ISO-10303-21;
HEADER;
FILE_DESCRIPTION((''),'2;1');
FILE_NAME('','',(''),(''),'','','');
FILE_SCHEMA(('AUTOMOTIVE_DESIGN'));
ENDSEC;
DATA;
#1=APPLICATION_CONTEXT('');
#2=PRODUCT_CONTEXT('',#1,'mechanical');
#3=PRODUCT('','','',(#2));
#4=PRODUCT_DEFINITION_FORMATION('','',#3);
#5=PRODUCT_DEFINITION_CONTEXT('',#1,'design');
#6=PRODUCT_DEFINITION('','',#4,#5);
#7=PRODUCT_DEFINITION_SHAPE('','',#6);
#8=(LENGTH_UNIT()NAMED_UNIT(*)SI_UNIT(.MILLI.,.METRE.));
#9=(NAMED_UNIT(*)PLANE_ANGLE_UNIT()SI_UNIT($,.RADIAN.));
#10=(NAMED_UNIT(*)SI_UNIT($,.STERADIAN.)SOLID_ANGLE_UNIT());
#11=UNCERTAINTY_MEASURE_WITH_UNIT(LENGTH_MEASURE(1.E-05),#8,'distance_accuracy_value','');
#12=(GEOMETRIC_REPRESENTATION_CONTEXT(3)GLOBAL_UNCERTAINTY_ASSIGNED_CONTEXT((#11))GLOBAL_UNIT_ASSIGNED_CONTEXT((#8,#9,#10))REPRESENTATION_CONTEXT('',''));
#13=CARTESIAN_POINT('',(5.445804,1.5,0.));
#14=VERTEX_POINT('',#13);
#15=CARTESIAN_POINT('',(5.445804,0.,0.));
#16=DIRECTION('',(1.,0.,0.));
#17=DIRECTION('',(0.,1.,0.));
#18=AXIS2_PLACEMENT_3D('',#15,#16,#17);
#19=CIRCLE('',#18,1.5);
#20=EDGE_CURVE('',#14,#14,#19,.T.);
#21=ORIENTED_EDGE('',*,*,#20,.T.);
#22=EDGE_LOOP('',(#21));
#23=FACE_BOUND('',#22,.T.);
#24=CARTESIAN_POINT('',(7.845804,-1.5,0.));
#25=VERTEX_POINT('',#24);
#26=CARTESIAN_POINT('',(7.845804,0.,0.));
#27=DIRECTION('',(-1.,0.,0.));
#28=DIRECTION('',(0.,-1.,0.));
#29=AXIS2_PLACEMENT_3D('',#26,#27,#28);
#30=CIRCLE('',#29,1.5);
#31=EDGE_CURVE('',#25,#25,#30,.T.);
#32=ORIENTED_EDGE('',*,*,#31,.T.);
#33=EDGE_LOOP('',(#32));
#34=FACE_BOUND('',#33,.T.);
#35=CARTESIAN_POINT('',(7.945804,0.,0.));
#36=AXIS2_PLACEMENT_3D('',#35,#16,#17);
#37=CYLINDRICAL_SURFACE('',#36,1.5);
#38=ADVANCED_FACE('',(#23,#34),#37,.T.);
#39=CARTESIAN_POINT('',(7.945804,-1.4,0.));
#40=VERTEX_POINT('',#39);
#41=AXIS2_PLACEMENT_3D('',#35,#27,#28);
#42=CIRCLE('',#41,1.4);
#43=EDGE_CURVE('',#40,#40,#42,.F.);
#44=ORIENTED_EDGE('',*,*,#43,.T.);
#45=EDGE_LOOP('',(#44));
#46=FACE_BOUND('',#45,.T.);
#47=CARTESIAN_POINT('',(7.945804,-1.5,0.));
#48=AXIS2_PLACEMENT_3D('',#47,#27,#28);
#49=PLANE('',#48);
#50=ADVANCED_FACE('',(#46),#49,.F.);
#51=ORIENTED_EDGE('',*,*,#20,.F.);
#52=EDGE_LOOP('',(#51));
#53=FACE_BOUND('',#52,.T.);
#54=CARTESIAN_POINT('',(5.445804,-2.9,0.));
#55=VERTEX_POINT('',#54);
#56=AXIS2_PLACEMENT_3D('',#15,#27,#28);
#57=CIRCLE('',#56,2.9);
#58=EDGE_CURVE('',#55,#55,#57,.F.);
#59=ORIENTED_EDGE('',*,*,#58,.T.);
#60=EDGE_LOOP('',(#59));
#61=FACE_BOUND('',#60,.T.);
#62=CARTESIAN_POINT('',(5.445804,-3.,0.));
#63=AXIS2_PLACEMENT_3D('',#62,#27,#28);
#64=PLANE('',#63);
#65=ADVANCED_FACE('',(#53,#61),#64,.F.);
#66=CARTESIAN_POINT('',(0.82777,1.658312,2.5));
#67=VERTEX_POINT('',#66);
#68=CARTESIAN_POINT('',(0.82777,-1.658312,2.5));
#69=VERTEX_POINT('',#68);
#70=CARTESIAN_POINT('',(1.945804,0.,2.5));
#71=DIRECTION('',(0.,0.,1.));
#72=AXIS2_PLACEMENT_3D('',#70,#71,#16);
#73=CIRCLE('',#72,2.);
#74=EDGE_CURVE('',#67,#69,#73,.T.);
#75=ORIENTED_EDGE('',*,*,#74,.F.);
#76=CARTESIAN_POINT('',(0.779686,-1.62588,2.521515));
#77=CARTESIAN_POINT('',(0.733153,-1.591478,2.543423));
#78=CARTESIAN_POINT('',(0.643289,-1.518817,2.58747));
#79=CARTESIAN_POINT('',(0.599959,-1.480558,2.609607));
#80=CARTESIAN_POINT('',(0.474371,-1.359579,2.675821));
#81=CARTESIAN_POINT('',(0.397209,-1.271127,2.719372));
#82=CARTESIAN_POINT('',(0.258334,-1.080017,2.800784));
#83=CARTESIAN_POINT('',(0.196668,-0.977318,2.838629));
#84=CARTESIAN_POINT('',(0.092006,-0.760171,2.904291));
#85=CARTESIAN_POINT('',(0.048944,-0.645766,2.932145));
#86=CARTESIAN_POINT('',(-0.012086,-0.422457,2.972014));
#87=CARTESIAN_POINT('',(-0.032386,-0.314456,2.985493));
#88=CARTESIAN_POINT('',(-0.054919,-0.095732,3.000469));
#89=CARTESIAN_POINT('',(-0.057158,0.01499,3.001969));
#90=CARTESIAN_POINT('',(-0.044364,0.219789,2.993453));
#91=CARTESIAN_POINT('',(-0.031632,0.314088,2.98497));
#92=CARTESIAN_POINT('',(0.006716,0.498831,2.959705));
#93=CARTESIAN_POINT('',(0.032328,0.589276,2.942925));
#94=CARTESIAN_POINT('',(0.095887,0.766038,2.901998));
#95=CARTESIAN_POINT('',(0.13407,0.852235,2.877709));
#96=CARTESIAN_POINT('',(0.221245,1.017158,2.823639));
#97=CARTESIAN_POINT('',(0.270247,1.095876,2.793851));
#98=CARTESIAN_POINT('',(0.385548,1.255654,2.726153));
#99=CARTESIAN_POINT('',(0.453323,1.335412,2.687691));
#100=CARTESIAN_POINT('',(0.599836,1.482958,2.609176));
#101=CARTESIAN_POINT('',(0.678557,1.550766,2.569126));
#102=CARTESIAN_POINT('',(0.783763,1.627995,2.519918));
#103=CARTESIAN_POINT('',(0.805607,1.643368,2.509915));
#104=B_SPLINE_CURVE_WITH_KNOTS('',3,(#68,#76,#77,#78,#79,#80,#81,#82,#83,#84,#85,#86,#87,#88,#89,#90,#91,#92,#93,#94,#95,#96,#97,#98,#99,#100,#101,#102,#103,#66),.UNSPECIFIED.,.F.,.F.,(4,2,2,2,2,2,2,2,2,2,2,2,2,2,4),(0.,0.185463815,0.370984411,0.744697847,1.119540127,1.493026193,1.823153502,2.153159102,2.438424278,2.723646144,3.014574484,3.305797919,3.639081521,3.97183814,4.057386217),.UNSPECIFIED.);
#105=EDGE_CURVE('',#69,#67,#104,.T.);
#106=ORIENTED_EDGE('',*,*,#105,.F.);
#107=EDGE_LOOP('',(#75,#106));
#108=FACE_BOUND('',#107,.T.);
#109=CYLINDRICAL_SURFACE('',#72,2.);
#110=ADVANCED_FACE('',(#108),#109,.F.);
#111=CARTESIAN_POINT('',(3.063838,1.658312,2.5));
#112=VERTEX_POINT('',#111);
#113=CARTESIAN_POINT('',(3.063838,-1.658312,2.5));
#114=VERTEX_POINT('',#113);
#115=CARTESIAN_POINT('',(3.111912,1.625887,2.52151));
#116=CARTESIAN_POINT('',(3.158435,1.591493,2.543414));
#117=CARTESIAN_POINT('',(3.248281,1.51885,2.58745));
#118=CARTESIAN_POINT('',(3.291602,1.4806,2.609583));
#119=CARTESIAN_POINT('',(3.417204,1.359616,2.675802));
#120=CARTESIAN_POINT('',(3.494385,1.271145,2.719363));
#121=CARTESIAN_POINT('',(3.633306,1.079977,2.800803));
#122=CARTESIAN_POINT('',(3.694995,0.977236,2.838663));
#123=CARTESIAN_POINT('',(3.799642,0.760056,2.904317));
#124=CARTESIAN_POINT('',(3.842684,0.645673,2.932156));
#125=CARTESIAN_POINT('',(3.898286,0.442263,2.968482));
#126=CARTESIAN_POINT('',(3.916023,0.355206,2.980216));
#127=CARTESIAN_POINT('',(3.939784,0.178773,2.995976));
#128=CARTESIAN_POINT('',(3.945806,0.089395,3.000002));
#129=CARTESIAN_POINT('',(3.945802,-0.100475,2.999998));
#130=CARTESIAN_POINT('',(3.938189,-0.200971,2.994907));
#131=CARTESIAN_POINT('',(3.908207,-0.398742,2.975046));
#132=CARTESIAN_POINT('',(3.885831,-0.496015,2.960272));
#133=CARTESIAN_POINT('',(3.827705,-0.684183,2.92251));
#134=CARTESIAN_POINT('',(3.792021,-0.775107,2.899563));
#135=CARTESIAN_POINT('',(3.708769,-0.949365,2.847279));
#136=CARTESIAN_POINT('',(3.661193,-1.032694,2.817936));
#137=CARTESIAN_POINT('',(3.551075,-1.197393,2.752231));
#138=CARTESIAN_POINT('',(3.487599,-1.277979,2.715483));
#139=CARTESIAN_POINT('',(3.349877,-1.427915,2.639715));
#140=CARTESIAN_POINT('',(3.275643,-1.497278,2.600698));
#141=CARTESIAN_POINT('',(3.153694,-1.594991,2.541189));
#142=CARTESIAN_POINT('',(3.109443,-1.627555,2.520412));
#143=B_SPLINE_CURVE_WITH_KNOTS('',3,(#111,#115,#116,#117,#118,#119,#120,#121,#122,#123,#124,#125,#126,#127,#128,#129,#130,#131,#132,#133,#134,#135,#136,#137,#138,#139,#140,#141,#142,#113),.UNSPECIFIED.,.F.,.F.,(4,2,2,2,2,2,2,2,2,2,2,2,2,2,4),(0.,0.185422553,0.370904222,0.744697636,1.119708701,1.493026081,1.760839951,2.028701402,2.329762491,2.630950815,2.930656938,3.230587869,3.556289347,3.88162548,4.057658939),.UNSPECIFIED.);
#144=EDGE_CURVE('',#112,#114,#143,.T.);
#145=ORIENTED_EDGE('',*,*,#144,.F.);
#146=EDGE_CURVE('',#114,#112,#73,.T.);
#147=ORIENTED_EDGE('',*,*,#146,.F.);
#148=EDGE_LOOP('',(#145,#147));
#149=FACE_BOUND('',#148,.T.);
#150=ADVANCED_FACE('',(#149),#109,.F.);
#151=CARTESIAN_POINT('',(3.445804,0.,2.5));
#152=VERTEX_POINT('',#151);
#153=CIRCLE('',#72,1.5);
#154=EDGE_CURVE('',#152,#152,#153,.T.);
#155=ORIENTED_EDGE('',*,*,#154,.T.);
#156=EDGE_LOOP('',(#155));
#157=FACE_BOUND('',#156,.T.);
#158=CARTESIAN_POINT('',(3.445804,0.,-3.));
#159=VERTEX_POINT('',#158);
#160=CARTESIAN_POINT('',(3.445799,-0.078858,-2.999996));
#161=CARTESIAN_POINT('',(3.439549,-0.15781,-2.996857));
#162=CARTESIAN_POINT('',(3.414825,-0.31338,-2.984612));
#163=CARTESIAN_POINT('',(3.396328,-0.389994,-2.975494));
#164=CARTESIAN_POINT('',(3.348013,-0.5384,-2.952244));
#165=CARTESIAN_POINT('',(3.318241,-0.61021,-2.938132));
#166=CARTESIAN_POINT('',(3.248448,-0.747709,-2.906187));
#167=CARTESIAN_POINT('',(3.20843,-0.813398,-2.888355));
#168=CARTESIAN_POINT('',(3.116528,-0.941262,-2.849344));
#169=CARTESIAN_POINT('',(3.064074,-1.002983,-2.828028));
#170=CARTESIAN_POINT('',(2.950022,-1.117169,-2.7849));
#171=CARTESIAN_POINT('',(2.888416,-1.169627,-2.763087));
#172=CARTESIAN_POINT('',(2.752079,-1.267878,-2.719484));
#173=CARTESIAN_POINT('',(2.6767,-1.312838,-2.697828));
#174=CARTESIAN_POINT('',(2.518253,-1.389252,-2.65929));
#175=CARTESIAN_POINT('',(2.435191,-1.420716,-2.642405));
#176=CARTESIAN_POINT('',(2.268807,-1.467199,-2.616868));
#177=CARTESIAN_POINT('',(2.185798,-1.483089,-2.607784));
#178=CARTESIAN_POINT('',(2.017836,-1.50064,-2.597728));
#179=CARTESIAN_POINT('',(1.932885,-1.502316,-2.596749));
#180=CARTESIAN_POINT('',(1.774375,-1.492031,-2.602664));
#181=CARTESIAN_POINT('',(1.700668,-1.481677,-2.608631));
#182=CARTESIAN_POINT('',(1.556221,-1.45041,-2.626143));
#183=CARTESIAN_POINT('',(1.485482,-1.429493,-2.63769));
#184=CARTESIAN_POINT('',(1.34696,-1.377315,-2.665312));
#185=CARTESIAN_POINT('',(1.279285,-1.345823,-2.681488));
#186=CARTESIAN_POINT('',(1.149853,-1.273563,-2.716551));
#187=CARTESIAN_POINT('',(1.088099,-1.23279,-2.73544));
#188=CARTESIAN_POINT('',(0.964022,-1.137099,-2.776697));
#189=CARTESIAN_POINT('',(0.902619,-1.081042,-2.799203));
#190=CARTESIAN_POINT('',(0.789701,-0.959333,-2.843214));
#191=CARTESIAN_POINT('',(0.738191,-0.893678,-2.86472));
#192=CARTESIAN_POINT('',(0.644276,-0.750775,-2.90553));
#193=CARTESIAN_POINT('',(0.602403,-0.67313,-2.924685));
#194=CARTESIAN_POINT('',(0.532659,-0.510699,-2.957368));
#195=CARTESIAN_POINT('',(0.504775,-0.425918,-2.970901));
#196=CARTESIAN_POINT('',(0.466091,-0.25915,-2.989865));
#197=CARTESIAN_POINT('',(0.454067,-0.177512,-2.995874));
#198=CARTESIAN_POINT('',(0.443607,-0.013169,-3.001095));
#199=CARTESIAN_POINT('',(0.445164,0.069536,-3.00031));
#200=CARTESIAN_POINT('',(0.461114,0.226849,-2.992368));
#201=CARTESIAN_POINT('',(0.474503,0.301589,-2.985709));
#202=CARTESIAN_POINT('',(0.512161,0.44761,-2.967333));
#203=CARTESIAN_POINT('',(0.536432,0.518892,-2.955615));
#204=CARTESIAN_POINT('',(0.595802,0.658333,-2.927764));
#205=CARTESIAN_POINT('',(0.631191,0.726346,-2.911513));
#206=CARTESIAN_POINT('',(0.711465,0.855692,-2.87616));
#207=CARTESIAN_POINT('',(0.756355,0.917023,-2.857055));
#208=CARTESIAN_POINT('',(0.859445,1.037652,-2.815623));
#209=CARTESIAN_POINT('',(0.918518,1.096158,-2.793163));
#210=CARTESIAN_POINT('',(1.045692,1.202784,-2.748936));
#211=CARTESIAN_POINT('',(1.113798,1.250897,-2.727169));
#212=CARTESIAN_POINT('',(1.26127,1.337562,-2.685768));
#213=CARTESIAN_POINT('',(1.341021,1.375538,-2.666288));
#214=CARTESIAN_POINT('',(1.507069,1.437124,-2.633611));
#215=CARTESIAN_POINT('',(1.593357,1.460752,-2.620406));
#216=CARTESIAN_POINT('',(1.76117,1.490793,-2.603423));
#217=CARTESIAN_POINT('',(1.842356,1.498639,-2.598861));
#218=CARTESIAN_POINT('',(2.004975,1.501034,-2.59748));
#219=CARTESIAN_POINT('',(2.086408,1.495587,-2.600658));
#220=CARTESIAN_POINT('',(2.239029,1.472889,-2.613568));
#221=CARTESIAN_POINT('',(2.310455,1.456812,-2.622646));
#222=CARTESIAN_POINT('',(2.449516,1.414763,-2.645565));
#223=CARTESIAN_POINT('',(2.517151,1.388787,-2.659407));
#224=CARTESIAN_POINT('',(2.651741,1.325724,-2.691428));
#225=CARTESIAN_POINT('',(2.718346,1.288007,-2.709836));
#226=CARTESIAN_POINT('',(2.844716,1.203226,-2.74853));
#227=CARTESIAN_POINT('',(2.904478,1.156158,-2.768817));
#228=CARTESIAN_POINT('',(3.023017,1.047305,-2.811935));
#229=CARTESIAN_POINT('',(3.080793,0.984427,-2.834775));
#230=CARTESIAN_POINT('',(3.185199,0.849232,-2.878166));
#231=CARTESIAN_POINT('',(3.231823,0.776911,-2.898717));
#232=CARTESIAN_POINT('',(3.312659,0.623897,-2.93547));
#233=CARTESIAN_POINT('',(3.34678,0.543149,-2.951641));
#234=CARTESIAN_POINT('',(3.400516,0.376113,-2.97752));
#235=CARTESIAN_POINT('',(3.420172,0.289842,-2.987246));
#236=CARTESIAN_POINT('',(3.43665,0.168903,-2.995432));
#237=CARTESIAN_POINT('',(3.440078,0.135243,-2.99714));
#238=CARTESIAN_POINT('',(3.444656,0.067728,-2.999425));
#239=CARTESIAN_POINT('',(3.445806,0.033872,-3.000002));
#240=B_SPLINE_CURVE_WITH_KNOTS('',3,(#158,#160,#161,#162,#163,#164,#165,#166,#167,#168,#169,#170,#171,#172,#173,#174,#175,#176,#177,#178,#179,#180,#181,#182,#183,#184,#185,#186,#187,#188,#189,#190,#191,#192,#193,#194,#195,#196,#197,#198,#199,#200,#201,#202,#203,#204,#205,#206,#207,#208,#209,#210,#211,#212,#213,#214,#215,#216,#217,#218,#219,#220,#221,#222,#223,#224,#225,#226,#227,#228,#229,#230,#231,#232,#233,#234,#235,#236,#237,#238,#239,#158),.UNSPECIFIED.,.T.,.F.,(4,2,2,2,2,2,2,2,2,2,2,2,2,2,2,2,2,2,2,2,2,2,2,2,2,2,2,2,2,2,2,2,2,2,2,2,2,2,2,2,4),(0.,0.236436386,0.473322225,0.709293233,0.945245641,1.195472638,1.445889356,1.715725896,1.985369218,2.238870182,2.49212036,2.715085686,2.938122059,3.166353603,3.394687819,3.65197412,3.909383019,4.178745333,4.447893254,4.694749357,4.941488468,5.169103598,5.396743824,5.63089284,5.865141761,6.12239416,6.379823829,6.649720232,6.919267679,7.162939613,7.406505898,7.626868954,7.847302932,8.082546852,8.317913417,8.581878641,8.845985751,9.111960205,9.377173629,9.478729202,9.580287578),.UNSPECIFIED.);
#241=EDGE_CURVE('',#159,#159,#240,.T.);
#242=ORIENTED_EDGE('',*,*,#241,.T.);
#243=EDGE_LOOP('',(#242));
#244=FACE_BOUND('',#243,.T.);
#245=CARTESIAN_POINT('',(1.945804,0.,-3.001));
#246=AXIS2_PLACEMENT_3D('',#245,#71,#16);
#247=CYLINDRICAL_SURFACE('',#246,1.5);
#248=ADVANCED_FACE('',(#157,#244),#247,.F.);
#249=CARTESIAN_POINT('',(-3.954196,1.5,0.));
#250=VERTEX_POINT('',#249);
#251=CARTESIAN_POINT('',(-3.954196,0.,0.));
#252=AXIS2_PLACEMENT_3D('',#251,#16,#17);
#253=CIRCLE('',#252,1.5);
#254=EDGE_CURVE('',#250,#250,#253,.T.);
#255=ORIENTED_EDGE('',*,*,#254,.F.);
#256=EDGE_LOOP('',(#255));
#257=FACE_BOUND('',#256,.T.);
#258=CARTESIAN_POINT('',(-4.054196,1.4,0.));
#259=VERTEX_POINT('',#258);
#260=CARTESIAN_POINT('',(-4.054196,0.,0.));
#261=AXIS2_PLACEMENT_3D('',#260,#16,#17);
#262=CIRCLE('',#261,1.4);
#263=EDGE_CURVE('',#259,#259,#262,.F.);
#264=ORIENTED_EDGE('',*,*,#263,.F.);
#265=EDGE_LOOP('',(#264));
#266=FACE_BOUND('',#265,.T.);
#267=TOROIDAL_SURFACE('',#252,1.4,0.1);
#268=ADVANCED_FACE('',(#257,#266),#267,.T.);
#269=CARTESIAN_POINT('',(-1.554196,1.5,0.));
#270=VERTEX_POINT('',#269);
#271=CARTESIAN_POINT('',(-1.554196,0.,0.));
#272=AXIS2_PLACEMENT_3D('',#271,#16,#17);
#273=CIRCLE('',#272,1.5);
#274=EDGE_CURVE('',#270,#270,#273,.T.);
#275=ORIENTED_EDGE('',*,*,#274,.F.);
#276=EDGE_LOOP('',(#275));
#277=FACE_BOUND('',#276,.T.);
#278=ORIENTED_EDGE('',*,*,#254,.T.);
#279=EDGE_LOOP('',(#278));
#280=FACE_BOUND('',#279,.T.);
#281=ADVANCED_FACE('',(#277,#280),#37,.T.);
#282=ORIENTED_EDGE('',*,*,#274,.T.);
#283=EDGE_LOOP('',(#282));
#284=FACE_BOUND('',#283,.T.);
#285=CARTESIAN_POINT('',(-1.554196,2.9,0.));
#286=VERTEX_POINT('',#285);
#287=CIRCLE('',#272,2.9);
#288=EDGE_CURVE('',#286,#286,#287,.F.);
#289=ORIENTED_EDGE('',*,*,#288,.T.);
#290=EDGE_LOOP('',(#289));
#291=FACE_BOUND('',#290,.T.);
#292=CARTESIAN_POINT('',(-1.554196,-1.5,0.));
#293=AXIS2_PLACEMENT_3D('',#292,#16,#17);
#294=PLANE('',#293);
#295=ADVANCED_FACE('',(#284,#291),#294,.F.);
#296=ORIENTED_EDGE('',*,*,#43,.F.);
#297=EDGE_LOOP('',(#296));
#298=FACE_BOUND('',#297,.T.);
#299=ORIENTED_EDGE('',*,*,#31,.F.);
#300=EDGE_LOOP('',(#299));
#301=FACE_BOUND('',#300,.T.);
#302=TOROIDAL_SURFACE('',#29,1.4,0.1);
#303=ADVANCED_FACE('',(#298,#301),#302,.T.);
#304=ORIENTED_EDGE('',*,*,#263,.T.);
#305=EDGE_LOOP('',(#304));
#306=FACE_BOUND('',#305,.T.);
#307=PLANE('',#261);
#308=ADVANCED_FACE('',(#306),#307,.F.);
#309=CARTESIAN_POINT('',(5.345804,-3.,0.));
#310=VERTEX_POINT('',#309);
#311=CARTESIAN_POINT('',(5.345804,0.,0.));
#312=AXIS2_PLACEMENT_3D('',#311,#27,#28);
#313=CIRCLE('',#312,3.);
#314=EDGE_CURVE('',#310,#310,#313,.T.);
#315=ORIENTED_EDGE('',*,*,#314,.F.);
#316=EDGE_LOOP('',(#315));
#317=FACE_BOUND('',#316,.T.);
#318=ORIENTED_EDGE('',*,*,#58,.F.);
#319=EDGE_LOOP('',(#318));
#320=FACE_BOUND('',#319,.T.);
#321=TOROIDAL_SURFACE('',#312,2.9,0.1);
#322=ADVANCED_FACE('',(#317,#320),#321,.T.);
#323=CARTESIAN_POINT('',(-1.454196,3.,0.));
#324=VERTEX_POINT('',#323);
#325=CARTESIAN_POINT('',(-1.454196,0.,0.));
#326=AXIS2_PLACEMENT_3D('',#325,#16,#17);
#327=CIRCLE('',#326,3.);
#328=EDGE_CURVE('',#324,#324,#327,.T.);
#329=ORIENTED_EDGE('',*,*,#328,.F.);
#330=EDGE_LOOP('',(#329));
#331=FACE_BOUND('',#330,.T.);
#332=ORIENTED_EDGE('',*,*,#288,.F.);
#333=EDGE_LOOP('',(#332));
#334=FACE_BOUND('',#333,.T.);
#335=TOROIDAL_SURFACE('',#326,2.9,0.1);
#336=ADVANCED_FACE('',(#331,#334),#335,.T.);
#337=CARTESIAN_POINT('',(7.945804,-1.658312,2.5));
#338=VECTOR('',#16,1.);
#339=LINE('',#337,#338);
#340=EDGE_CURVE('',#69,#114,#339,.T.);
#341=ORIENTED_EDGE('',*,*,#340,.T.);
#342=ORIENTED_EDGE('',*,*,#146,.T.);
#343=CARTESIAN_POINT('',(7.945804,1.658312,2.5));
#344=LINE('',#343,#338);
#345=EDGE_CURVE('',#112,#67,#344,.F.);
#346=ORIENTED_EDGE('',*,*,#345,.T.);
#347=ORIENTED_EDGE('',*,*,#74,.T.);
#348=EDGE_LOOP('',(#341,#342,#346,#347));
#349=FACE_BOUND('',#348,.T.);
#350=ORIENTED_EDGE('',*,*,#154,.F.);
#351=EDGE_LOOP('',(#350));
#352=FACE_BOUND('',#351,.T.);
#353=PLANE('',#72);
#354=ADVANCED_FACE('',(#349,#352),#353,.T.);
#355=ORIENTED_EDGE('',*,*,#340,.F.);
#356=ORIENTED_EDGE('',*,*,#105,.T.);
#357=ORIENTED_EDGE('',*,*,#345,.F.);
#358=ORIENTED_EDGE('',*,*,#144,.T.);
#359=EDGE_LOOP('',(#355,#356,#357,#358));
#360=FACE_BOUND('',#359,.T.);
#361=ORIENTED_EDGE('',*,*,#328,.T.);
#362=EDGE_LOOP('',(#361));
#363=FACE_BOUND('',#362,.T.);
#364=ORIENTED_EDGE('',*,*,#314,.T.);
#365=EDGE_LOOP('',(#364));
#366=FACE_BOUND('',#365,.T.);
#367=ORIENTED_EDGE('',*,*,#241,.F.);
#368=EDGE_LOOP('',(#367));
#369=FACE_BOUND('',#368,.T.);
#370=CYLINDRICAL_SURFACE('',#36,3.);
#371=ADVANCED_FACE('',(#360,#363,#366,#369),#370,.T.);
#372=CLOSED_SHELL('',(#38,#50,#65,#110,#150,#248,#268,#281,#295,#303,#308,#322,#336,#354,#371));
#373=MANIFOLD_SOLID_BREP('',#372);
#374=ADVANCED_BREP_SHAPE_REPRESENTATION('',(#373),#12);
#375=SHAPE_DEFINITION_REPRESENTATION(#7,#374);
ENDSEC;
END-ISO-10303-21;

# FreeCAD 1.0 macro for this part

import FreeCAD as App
import Part
import Sketcher


def edges_at(feature, points):
    """Names of the edges that pass closest to the given points."""
    edges = feature.Shape.Edges
    near = lambda p: min(range(len(edges)), key=lambda i: edges[i].distToShape(Part.Vertex(*p))[0])
    return sorted({f"Edge{near(p) + 1}" for p in points})

doc = App.newDocument("Part")
body = doc.addObject("PartDesign::Body", "Body")

# Sketch on XY plane
sketch1 = body.newObject("Sketcher::SketchObject", "Sketch")
sketch1.AttachmentSupport = (doc.getObject("XY_Plane"), [""])
sketch1.MapMode = "FlatFace"
sketch1.addGeometry([
    Part.LineSegment(App.Vector(-4.1, 0, 0), App.Vector(-4.1, -1.5, 0)),  # 0
    Part.LineSegment(App.Vector(-4.1, -1.5, 0), App.Vector(-1.6, -1.5, 0)),  # 1
    Part.LineSegment(App.Vector(-1.6, -1.5, 0), App.Vector(-1.6, -3, 0)),  # 2
    Part.LineSegment(App.Vector(-1.6, -3, 0), App.Vector(5.4, -3, 0)),  # 3
    Part.LineSegment(App.Vector(5.4, -3, 0), App.Vector(5.4, -1.5, 0)),  # 4
    Part.LineSegment(App.Vector(5.4, -1.5, 0), App.Vector(7.9, -1.5, 0)),  # 5
    Part.LineSegment(App.Vector(7.9, -1.5, 0), App.Vector(7.9, 0, 0)),  # 6
    Part.LineSegment(App.Vector(7.9, 0, 0), App.Vector(-4.1, 0, 0)),  # 7
], False)
sketch1.addConstraint([
    Sketcher.Constraint("Coincident", 0, 2, 1, 1),
    Sketcher.Constraint("Coincident", 1, 2, 2, 1),
    Sketcher.Constraint("Coincident", 2, 2, 3, 1),
    Sketcher.Constraint("Coincident", 3, 2, 4, 1),
    Sketcher.Constraint("Coincident", 4, 2, 5, 1),
    Sketcher.Constraint("Coincident", 5, 2, 6, 1),
    Sketcher.Constraint("Coincident", 6, 2, 7, 1),
    Sketcher.Constraint("Coincident", 7, 2, 0, 1),
    Sketcher.Constraint("Vertical", 0),
    Sketcher.Constraint("Horizontal", 1),
    Sketcher.Constraint("Vertical", 2),
    Sketcher.Constraint("Horizontal", 3),
    Sketcher.Constraint("Vertical", 4),
    Sketcher.Constraint("Horizontal", 5),
    Sketcher.Constraint("Vertical", 6),
    Sketcher.Constraint("Horizontal", 7),
    Sketcher.Constraint("PointOnObject", 6, 2, -1),
    Sketcher.Constraint("Horizontal", 1, 2, 4, 2),
    Sketcher.Constraint("Equal", 1, 5),
    Sketcher.Constraint("Equal", 0, 2),
    Sketcher.Constraint("DistanceX", 3, 1, 3, 2, 7.0),
    Sketcher.Constraint("DistanceX", 7, 2, 7, 1, 12.0),
    Sketcher.Constraint("DistanceY", 0, 2, 0, 1, 1.5),
    Sketcher.Constraint("DistanceX", 0, 2, -1, 1, 4.054196),
])
revolution = body.newObject("PartDesign::Revolution", "Revolution")
revolution.Profile = sketch1
revolution.ReferenceAxis = (sketch1, ["H_Axis"])
revolution.Angle = 360
doc.recompute()

fillet = body.newObject("PartDesign::Fillet", "Fillet")
fillet.Base = (revolution, edges_at(revolution, [
    (7.946, 1.5, 0),
    (5.446, 3, 0),
    (-1.554, 3, 0),
    (-4.054, 1.5, 0),
]))
fillet.Radius = 0.1

# Sketch on XY plane
sketch2 = body.newObject("Sketcher::SketchObject", "Sketch001")
sketch2.AttachmentSupport = (doc.getObject("XY_Plane"), [""])
sketch2.MapMode = "FlatFace"
sketch2.AttachmentOffset = App.Placement(App.Vector(0, 0, 3), App.Rotation())
sketch2.addGeometry(Part.Circle(App.Vector(1.9, 0, 0), App.Vector(0, 0, 1), 2), False)
sketch2.addConstraint([
    Sketcher.Constraint("PointOnObject", 0, 3, -1),
    Sketcher.Constraint("Diameter", 0, 4.0),
    Sketcher.Constraint("DistanceX", -1, 1, 0, 3, 1.945804),
])
pocket1 = body.newObject("PartDesign::Pocket", "Pocket")
pocket1.Profile = sketch2
pocket1.Length = 0.5

# Sketch on XY plane
sketch3 = body.newObject("Sketcher::SketchObject", "Sketch002")
sketch3.AttachmentSupport = (doc.getObject("XY_Plane"), [""])
sketch3.MapMode = "FlatFace"
sketch3.AttachmentOffset = App.Placement(App.Vector(0, 0, 2.5), App.Rotation())
sketch3.addGeometry(Part.Circle(App.Vector(1.9, 0, 0), App.Vector(0, 0, 1), 1.5), False)
sketch3.addConstraint([
    Sketcher.Constraint("PointOnObject", 0, 3, -1),
    Sketcher.Constraint("Diameter", 0, 3.0),
    Sketcher.Constraint("DistanceX", -1, 1, 0, 3, 1.945804),
])
pocket2 = body.newObject("PartDesign::Pocket", "Pocket001")
pocket2.Profile = sketch3
pocket2.Type = "UpToFirst"

doc.recompute()
